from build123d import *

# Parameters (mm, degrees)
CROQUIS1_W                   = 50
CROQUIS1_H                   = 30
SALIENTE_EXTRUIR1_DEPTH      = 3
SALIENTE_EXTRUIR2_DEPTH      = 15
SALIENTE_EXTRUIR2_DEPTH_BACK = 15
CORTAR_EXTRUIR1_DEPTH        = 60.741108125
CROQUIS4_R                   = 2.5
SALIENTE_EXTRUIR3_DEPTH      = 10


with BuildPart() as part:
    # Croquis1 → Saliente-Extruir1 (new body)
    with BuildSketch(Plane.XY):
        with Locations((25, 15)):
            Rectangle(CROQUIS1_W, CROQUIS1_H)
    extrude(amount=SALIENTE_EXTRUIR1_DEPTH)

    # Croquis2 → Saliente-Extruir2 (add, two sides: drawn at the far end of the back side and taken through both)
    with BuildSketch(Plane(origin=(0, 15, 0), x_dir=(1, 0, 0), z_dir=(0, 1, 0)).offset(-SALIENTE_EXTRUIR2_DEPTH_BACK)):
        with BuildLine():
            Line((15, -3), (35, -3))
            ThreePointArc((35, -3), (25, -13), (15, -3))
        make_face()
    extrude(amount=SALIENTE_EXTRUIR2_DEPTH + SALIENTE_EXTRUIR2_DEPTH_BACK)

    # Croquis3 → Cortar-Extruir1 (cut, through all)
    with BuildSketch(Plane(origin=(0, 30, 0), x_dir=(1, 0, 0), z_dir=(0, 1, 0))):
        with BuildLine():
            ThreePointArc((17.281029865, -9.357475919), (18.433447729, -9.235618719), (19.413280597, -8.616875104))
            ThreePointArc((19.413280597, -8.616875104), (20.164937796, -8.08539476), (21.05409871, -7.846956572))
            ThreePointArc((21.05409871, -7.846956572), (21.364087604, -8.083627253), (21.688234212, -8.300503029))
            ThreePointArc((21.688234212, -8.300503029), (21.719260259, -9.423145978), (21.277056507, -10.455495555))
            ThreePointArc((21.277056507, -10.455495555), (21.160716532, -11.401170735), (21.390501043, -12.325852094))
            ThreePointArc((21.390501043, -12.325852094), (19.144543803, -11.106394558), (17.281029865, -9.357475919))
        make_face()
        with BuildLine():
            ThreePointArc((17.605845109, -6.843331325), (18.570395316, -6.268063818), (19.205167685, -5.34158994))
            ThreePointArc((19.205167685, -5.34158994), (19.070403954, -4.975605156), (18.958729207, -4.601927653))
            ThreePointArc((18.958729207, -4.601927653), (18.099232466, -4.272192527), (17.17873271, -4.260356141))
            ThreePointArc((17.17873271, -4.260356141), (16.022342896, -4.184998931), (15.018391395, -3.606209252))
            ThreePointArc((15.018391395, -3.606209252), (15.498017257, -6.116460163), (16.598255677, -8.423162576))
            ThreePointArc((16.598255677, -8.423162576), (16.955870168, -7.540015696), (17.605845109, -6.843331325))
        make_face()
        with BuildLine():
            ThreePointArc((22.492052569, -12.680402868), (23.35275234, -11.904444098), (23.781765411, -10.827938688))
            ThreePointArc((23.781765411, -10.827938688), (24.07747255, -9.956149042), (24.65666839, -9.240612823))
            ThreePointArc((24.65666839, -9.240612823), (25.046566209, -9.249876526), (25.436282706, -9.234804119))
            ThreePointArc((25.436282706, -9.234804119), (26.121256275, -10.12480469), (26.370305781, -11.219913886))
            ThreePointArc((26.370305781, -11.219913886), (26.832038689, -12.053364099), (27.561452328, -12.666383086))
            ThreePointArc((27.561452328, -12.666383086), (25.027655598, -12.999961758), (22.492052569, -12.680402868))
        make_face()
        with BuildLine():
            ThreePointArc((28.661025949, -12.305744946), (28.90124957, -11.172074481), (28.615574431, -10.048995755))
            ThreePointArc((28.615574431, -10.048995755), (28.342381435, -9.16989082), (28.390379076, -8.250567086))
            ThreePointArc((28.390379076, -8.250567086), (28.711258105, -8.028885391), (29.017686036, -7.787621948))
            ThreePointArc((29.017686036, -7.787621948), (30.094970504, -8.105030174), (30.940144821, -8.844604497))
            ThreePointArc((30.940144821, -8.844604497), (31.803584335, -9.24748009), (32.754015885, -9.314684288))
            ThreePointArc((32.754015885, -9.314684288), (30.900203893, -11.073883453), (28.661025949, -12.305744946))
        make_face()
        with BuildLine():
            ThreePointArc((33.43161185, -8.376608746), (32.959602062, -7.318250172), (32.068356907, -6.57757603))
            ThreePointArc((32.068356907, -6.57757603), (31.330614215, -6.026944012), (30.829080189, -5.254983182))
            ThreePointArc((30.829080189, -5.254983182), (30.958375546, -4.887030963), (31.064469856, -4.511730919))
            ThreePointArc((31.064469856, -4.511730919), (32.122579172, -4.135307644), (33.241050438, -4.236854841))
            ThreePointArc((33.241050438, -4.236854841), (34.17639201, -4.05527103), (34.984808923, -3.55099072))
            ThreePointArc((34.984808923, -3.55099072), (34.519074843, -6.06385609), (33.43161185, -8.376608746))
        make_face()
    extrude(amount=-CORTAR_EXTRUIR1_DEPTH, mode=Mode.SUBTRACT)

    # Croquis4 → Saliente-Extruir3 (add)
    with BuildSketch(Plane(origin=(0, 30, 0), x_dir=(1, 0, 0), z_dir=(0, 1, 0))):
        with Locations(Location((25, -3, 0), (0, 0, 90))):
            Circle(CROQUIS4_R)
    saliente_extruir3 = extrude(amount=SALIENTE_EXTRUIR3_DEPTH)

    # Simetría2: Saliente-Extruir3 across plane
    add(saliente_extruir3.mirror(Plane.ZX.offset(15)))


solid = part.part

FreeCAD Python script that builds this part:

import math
import FreeCAD as App
import Part
import Sketcher
Q = App.Units.Quantity

doc = App.newDocument("Part")
params = doc.addObject("Spreadsheet::Sheet", "Params")
for row, (alias, value) in enumerate([
    ("sketch1_width", "50 mm"),
    ("sketch1_height", "30 mm"),
    ("pad1_length", "3 mm"),
    ("sketch2_radius", "10 mm"),
    ("pad2_length", "15 mm"),
    ("pad2_length2", "15 mm"),
    ("sketch3_radius", "10 mm"),
    ("sketch4_diameter", "5 mm"),
    ("pad3_length", "10 mm"),
], start=1):
    params.set(f"A{row}", alias)
    params.set(f"B{row}", "=" + value)
    params.setAlias(f"B{row}", alias)

body = doc.addObject("PartDesign::Body", "Body")

# Sketch on XY plane
sketch1 = doc.addObject("Sketcher::SketchObject", "Sketch")
body.addObject(sketch1)
sketch1.AttachmentSupport = (doc.XY_Plane, [""])
sketch1.MapMode = "FlatFace"
sketch1.addGeometry([
    Part.LineSegment(App.Vector(0, 30, 0), App.Vector(0, 0, 0)),
    Part.LineSegment(App.Vector(0, 0, 0), App.Vector(50, 0, 0)),
    Part.LineSegment(App.Vector(50, 0, 0), App.Vector(50, 30, 0)),
    Part.LineSegment(App.Vector(50, 30, 0), App.Vector(0, 30, 0)),
], False)
sketch1.addConstraint([
    Sketcher.Constraint("Coincident", 0, 2, 1, 1),
    Sketcher.Constraint("Coincident", 1, 2, 2, 1),
    Sketcher.Constraint("Coincident", 2, 2, 3, 1),
    Sketcher.Constraint("Coincident", 3, 2, 0, 1),
    Sketcher.Constraint("Vertical", 0),
    Sketcher.Constraint("Horizontal", 1),
    Sketcher.Constraint("Vertical", 2),
    Sketcher.Constraint("Horizontal", 3),
    Sketcher.Constraint("Coincident", 0, 2, -1, 1),
    Sketcher.Constraint("DistanceX", 1, 1, 1, 2, Q("50 mm")),
    Sketcher.Constraint("DistanceY", 0, 2, 0, 1, Q("30 mm")),
])
sketch1.setExpression("Constraints[9]", "Params.sketch1_width")
sketch1.setExpression("Constraints[10]", "Params.sketch1_height")
pad1 = doc.addObject("PartDesign::Pad", "Pad")
body.addObject(pad1)
pad1.Profile = sketch1
pad1.setExpression("Length", "Params.pad1_length")

# Sketch on XZ plane
sketch2 = doc.addObject("Sketcher::SketchObject", "Sketch001")
body.addObject(sketch2)
sketch2.AttachmentSupport = (doc.XZ_Plane, [""])
sketch2.MapMode = "FlatFace"
sketch2.AttachmentOffset = App.Placement(App.Vector(0, 0, -15), App.Rotation())
sketch2.addGeometry([
    Part.LineSegment(App.Vector(35, 3, 0), App.Vector(15, 3, 0)),
    Part.ArcOfCircle(Part.Circle(App.Vector(25, 3, 0), App.Vector(0, 0, 1), 10), math.radians(0), math.radians(180)),
], False)
sketch2.addConstraint([
    Sketcher.Constraint("Coincident", 0, 1, 1, 1),
    Sketcher.Constraint("Coincident", 1, 2, 0, 2),
    Sketcher.Constraint("Horizontal", 0),
    Sketcher.Constraint("Horizontal", 1, 3, 0, 1),
    Sketcher.Constraint("Radius", 1, Q("10 mm")),
    Sketcher.Constraint("DistanceX", -1, 1, 1, 3, Q("25 mm")),
    Sketcher.Constraint("DistanceY", -1, 1, 1, 3, Q("3 mm")),
])
sketch2.setExpression("Constraints[4]", "Params.sketch2_radius")
pad2 = doc.addObject("PartDesign::Pad", "Pad001")
body.addObject(pad2)
pad2.Profile = sketch2
pad2.Type = "TwoLengths"
pad2.setExpression("Length", "Params.pad2_length")
pad2.setExpression("Length2", "Params.pad2_length2")
pad2.Reversed = True

# Sketch on XZ plane
sketch3 = doc.addObject("Sketcher::SketchObject", "Sketch002")
body.addObject(sketch3)
sketch3.AttachmentSupport = (doc.XZ_Plane, [""])
sketch3.MapMode = "FlatFace"
sketch3.AttachmentOffset = App.Placement(App.Vector(0, 0, -30), App.Rotation())
sketch3.addGeometry([
    Part.ArcOfCircle(Part.Circle(App.Vector(17.595781, 6.823906, 0), App.Vector(0, 0, 1), 2.553046), math.radians(44.610717), math.radians(97.081691)),  # 0
    Part.ArcOfCircle(Part.Circle(App.Vector(25, 3, 0), App.Vector(0, 0, 1), 10), math.radians(111.158544), math.radians(140.524546)),  # 1
    Part.ArcOfCircle(Part.Circle(App.Vector(23.773964, 11.242667, 0), App.Vector(0, 0, 1), 2.61805), math.radians(155.560171), math.radians(197.497901)),  # 2
    Part.ArcOfCircle(Part.Circle(App.Vector(19.147603, 8.932468, 0), App.Vector(0, 0, 1), 2.61805), math.radians(-13.968448), math.radians(35.573112)),  # 3
    Part.ArcOfCircle(Part.Circle(App.Vector(25, 3, 0), App.Vector(0, 0, 1), 6.25005), math.radians(121.997231), math.radians(129.148992)),  # 4
    Part.ArcOfCircle(Part.Circle(App.Vector(21.277057, 10.455496, 0), App.Vector(0, 0, 1), 2.61805), math.radians(-135.389283), math.radians(-94.885328)),  # 5
    Part.ArcOfCircle(Part.Circle(App.Vector(16.778294, 4.359515, 0), App.Vector(0, 0, 1), 2.61805), math.radians(22.031552), math.radians(71.573112)),  # 6
    Part.ArcOfCircle(Part.Circle(App.Vector(25, 3, 0), App.Vector(0, 0, 1), 6.25005), math.radians(157.997232), math.radians(165.148992)),  # 7
    Part.ArcOfCircle(Part.Circle(App.Vector(17.605845, 6.843331, 0), App.Vector(0, 0, 1), 2.61805), math.radians(-99.389283), math.radians(-58.885328)),  # 8
    Part.ArcOfCircle(Part.Circle(App.Vector(16.762225, 1.741514, 0), App.Vector(0, 0, 1), 2.553046), math.radians(80.610717), math.radians(133.081691)),  # 9
    Part.ArcOfCircle(Part.Circle(App.Vector(25, 3, 0), App.Vector(0, 0, 1), 10), math.radians(147.158544), math.radians(176.524546)),  # 10
    Part.ArcOfCircle(Part.Circle(App.Vector(19.163198, 8.947812, 0), App.Vector(0, 0, 1), 2.61805), math.radians(-168.439829), math.radians(-126.502099)),  # 11
    Part.ArcOfCircle(Part.Circle(App.Vector(21.257496, 10.445696, 0), App.Vector(0, 0, 1), 2.553046), math.radians(8.610717), math.radians(61.081691)),  # 12
    Part.ArcOfCircle(Part.Circle(App.Vector(25, 3, 0), App.Vector(0, 0, 1), 10), math.radians(75.158544), math.radians(104.524546)),  # 13
    Part.ArcOfCircle(Part.Circle(App.Vector(28.853034, 10.389103, 0), App.Vector(0, 0, 1), 2.61805), math.radians(119.560171), math.radians(161.497901)),  # 14
    Part.ArcOfCircle(Part.Circle(App.Vector(23.752328, 11.23942, 0), App.Vector(0, 0, 1), 2.61805), math.radians(-49.968448), math.radians(-0.426888)),  # 15
    Part.ArcOfCircle(Part.Circle(App.Vector(25, 3, 0), App.Vector(0, 0, 1), 6.25005), math.radians(85.997232), math.radians(93.148992)),  # 16
    Part.ArcOfCircle(Part.Circle(App.Vector(26.370306, 11.219914, 0), App.Vector(0, 0, 1), 2.61805), math.radians(-171.389283), math.radians(-130.885328)),  # 17
    Part.ArcOfCircle(Part.Circle(App.Vector(26.348721, 11.223483, 0), App.Vector(0, 0, 1), 2.553046), math.radians(-27.389283), math.radians(25.081691)),  # 18
    Part.ArcOfCircle(Part.Circle(App.Vector(25, 3, 0), App.Vector(0, 0, 1), 10), math.radians(39.158544), math.radians(68.524546)),  # 19
    Part.ArcOfCircle(Part.Circle(App.Vector(32.460376, 6.713154, 0), App.Vector(0, 0, 1), 2.61805), math.radians(83.560171), math.radians(125.497901)),  # 20
    Part.ArcOfCircle(Part.Circle(App.Vector(28.833622, 10.399194, 0), App.Vector(0, 0, 1), 2.61805), math.radians(-85.968448), math.radians(-36.426888)),  # 21
    Part.ArcOfCircle(Part.Circle(App.Vector(25, 3, 0), App.Vector(0, 0, 1), 6.25005), math.radians(49.997232), math.radians(57.148992)),  # 22
    Part.ArcOfCircle(Part.Circle(App.Vector(30.940145, 8.844604, 0), App.Vector(0, 0, 1), 2.61805), math.radians(152.610717), math.radians(193.114672)),  # 23
    Part.ArcOfCircle(Part.Circle(App.Vector(30.92478, 8.860179, 0), App.Vector(0, 0, 1), 2.553046), math.radians(-63.389283), math.radians(-10.918309)),  # 24
    Part.ArcOfCircle(Part.Circle(App.Vector(25, 3, 0), App.Vector(0, 0, 1), 10), math.radians(3.158544), math.radians(32.524546)),  # 25
    Part.ArcOfCircle(Part.Circle(App.Vector(33.218108, 1.618905, 0), App.Vector(0, 0, 1), 2.61805), math.radians(47.560171), math.radians(89.497901)),  # 26
    Part.ArcOfCircle(Part.Circle(App.Vector(32.450602, 6.732727, 0), App.Vector(0, 0, 1), 2.61805), math.radians(-121.968448), math.radians(-72.426888)),  # 27
    Part.ArcOfCircle(Part.Circle(App.Vector(25, 3, 0), App.Vector(0, 0, 1), 6.25005), math.radians(13.997232), math.radians(21.148992)),  # 28
    Part.ArcOfCircle(Part.Circle(App.Vector(33.24105, 4.236855, 0), App.Vector(0, 0, 1), 2.61805), math.radians(116.610717), math.radians(157.114672)),  # 29
], False)
sketch3.addConstraint([
    Sketcher.Constraint("Coincident", 0, 2, 1, 2),
    Sketcher.Constraint("Coincident", 1, 1, 2, 1),
    Sketcher.Constraint("Coincident", 2, 2, 3, 2),
    Sketcher.Constraint("Coincident", 3, 1, 4, 1),
    Sketcher.Constraint("Coincident", 4, 2, 5, 2),
    Sketcher.Constraint("Tangent", 5, 1, 0, 1),
    Sketcher.Constraint("Coincident", 6, 1, 7, 1),
    Sketcher.Constraint("Coincident", 7, 2, 8, 2),
    Sketcher.Constraint("Tangent", 8, 1, 9, 1),
    Sketcher.Constraint("Coincident", 9, 2, 10, 2),
    Sketcher.Constraint("Coincident", 10, 1, 11, 1),
    Sketcher.Constraint("Coincident", 11, 2, 6, 2),
    Sketcher.Constraint("Coincident", 12, 2, 13, 2),
    Sketcher.Constraint("Coincident", 13, 1, 14, 1),
    Sketcher.Constraint("Coincident", 14, 2, 15, 2),
    Sketcher.Constraint("Coincident", 15, 1, 16, 1),
    Sketcher.Constraint("Coincident", 16, 2, 17, 2),
    Sketcher.Constraint("Tangent", 17, 1, 12, 1),
    Sketcher.Constraint("Coincident", 18, 2, 19, 2),
    Sketcher.Constraint("Coincident", 19, 1, 20, 1),
    Sketcher.Constraint("Coincident", 20, 2, 21, 2),
    Sketcher.Constraint("Coincident", 21, 1, 22, 1),
    Sketcher.Constraint("Coincident", 22, 2, 23, 2),
    Sketcher.Constraint("Tangent", 23, 1, 18, 1),
    Sketcher.Constraint("Coincident", 24, 2, 25, 2),
    Sketcher.Constraint("Coincident", 25, 1, 26, 1),
    Sketcher.Constraint("Coincident", 26, 2, 27, 2),
    Sketcher.Constraint("Coincident", 27, 1, 28, 1),
    Sketcher.Constraint("Coincident", 28, 2, 29, 2),
    Sketcher.Constraint("Tangent", 29, 1, 24, 1),
    Sketcher.Constraint("Coincident", 4, 3, 1, 3),
    Sketcher.Constraint("Coincident", 7, 3, 1, 3),
    Sketcher.Constraint("Coincident", 10, 3, 1, 3),
    Sketcher.Constraint("Coincident", 13, 3, 1, 3),
    Sketcher.Constraint("Coincident", 16, 3, 1, 3),
    Sketcher.Constraint("Coincident", 19, 3, 1, 3),
    Sketcher.Constraint("Coincident", 22, 3, 1, 3),
    Sketcher.Constraint("Coincident", 25, 3, 1, 3),
    Sketcher.Constraint("Coincident", 28, 3, 1, 3),
    Sketcher.Constraint("Coincident", 2, 2, 5, 3),
    Sketcher.Constraint("Coincident", 11, 2, 8, 3),
    Sketcher.Constraint("Coincident", 14, 2, 17, 3),
    Sketcher.Constraint("Coincident", 20, 2, 23, 3),
    Sketcher.Constraint("Coincident", 26, 2, 29, 3),
    Sketcher.Constraint("Equal", 2, 3),
    Sketcher.Constraint("Equal", 3, 5),
    Sketcher.Constraint("Equal", 5, 6),
    Sketcher.Constraint("Equal", 4, 7),
    Sketcher.Constraint("Equal", 6, 8),
    Sketcher.Constraint("Equal", 0, 9),
    Sketcher.Constraint("Equal", 1, 10),
    Sketcher.Constraint("Equal", 8, 11),
    Sketcher.Constraint("Equal", 9, 12),
    Sketcher.Constraint("Equal", 10, 13),
    Sketcher.Constraint("Equal", 11, 14),
    Sketcher.Constraint("Equal", 14, 15),
    Sketcher.Constraint("Equal", 7, 16),
    Sketcher.Constraint("Equal", 15, 17),
    Sketcher.Constraint("Equal", 12, 18),
    Sketcher.Constraint("Equal", 13, 19),
    Sketcher.Constraint("Equal", 17, 20),
    Sketcher.Constraint("Equal", 20, 21),
    Sketcher.Constraint("Equal", 16, 22),
    Sketcher.Constraint("Equal", 21, 23),
    Sketcher.Constraint("Equal", 18, 24),
    Sketcher.Constraint("Equal", 19, 25),
    Sketcher.Constraint("Equal", 23, 26),
    Sketcher.Constraint("Equal", 26, 27),
    Sketcher.Constraint("Equal", 22, 28),
    Sketcher.Constraint("Equal", 27, 29),
    Sketcher.Constraint("Radius", 1, Q("10 mm")),
    Sketcher.Constraint("DistanceX", -1, 1, 1, 3, Q("25 mm")),
    Sketcher.Constraint("DistanceY", -1, 1, 1, 3, Q("3 mm")),
    Sketcher.Constraint("Radius", 2, Q("2.61805 mm")),
    Sketcher.Constraint("Radius", 4, Q("6.25005 mm")),
    Sketcher.Constraint("Radius", 0, Q("2.553046 mm")),
    Sketcher.Constraint("DistanceY", 9, 3, 6, 3, Q("2.618001 mm")),
    Sketcher.Constraint("DistanceX", -1, 1, 1, 1, Q("21.390501 mm")),
    Sketcher.Constraint("DistanceX", -1, 1, 4, 2, Q("21.054099 mm")),
    Sketcher.Constraint("DistanceY", 3, 3, 2, 3, Q("2.310199 mm")),
    Sketcher.Constraint("DistanceY", 12, 3, 5, 3, Q("0.0098 mm")),
    Sketcher.Constraint("DistanceX", 11, 3, 12, 3, Q("2.094298 mm")),
    Sketcher.Constraint("DistanceX", 18, 3, 21, 3, Q("2.484901 mm")),
    Sketcher.Constraint("DistanceY", 23, 3, 14, 3, Q("1.544499 mm")),
    Sketcher.Constraint("DistanceY", 26, 3, 23, 3, Q("7.225699 mm")),
    Sketcher.Constraint("DistanceY", 29, 3, 20, 3, Q("2.476299 mm")),
    Sketcher.Constraint("DistanceX", 11, 3, 4, 2, Q("1.890901 mm")),
    Sketcher.Constraint("DistanceY", 5, 1, 0, 2, Q("0.740601 mm")),
    Sketcher.Constraint("DistanceY", 18, 3, 13, 1, Q("1.4429 mm")),
    Sketcher.Constraint("DistanceY", 16, 2, 17, 3, Q("1.979301 mm")),
    Sketcher.Constraint("DistanceX", 2, 3, 17, 1, Q("0.007801 mm")),
    Sketcher.Constraint("DistanceX", 22, 2, 24, 3, Q("2.534401 mm")),
    Sketcher.Constraint("DistanceX", 26, 3, 25, 1, Q("1.766701 mm")),
    Sketcher.Constraint("DistanceY", -1, 1, 8, 3, Q("6.843331 mm")),
    Sketcher.Constraint("DistanceY", -1, 1, 11, 3, Q("8.947812 mm")),
    Sketcher.Constraint("DistanceX", -1, 1, 15, 3, Q("23.752328 mm")),
    Sketcher.Constraint("DistanceX", -1, 1, 18, 3, Q("26.348721 mm")),
    Sketcher.Constraint("DistanceX", -1, 1, 24, 3, Q("30.92478 mm")),
    Sketcher.Constraint("DistanceY", -1, 1, 24, 3, Q("8.860179 mm")),
    Sketcher.Constraint("DistanceY", -1, 1, 6, 1, Q("5.34159 mm")),
    Sketcher.Constraint("DistanceX", -1, 1, 27, 1, Q("31.06447 mm")),
])
sketch3.setExpression("Constraints[70]", "Params.sketch3_radius")
pocket1 = doc.addObject("PartDesign::Pocket", "Pocket")
body.addObject(pocket1)
pocket1.Profile = sketch3
pocket1.Type = "ThroughAll"
pocket1.Reversed = True

# Sketch on XZ plane
sketch4 = doc.addObject("Sketcher::SketchObject", "Sketch003")
body.addObject(sketch4)
sketch4.AttachmentSupport = (doc.XZ_Plane, [""])
sketch4.MapMode = "FlatFace"
sketch4.AttachmentOffset = App.Placement(App.Vector(0, 0, -30), App.Rotation())
sketch4.addGeometry(Part.Circle(App.Vector(25, 3, 0), App.Vector(0, 0, 1), 2.5), False)
sketch4.addConstraint([
    Sketcher.Constraint("Diameter", 0, Q("5 mm")),
    Sketcher.Constraint("DistanceX", -1, 1, 0, 3, Q("25 mm")),
    Sketcher.Constraint("DistanceY", -1, 1, 0, 3, Q("3 mm")),
])
sketch4.setExpression("Constraints[0]", "Params.sketch4_diameter")
pad3 = doc.addObject("PartDesign::Pad", "Pad002")
body.addObject(pad3)
pad3.Profile = sketch4
pad3.setExpression("Length", "Params.pad3_length")
pad3.Reversed = True
doc.recompute()

datumplane = doc.addObject("PartDesign::Plane", "DatumPlane")
body.addObject(datumplane)
datumplane.AttachmentSupport = (doc.XZ_Plane, [""])
datumplane.MapMode = "FlatFace"
datumplane.AttachmentOffset = App.Placement(App.Vector(0, 0, -15), App.Rotation())
mirrored = doc.addObject("PartDesign::Mirrored", "Mirrored")
body.addObject(mirrored)
mirrored.Originals = [pad3]
mirrored.MirrorPlane = (datumplane, [""])
body.Tip = mirrored

doc.recompute()
